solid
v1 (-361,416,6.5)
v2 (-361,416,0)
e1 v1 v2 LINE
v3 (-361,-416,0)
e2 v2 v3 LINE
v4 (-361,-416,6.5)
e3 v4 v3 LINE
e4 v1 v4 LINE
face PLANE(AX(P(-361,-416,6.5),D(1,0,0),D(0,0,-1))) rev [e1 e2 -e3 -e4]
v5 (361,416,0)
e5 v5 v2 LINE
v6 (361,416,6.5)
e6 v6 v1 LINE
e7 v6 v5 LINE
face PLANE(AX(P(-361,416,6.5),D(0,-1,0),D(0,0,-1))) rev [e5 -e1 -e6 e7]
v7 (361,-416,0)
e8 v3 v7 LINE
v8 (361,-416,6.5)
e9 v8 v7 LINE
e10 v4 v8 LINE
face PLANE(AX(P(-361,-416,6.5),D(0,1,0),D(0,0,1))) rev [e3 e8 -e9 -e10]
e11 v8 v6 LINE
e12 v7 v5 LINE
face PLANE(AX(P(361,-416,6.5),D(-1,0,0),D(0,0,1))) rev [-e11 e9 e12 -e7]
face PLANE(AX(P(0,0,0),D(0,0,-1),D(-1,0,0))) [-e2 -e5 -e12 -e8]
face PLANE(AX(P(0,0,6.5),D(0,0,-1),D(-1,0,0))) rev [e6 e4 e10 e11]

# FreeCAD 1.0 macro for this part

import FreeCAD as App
import Part
import Sketcher

V = App.Vector
Q = App.Units.Quantity

doc = App.newDocument("Part")
body = doc.addObject("PartDesign::Body", "Body")

sketch1 = body.newObject("Sketcher::SketchObject", "Sketch")
sketch1.AttachmentSupport = (doc.getObject("XY_Plane"), [""])
sketch1.MapMode = "FlatFace"
sketch1.addGeometry([
    Part.LineSegment(V(-361, 416, 0), V(-361, -416, 0)),
    Part.LineSegment(V(-361, -416, 0), V(361, -416, 0)),
    Part.LineSegment(V(361, -416, 0), V(361, 416, 0)),
    Part.LineSegment(V(361, 416, 0), V(-361, 416, 0)),
], False)
sketch1.addConstraint([
    Sketcher.Constraint("Coincident", 0, 2, 1, 1),
    Sketcher.Constraint("Coincident", 1, 2, 2, 1),
    Sketcher.Constraint("Coincident", 2, 2, 3, 1),
    Sketcher.Constraint("Coincident", 3, 2, 0, 1),
    Sketcher.Constraint("Vertical", 0),
    Sketcher.Constraint("Horizontal", 1),
    Sketcher.Constraint("Vertical", 2),
    Sketcher.Constraint("Horizontal", 3),
    Sketcher.Constraint("Symmetric", 0, 2, 2, 2, -1, 1),
    Sketcher.Constraint("DistanceX", 1, 1, 1, 2, Q("722 mm")),
    Sketcher.Constraint("DistanceY", 0, 2, 0, 1, Q("832 mm")),
])
pad1 = body.newObject("PartDesign::Pad", "Pad")
pad1.Profile = sketch1
pad1.Length = 6.5

doc.recompute()
